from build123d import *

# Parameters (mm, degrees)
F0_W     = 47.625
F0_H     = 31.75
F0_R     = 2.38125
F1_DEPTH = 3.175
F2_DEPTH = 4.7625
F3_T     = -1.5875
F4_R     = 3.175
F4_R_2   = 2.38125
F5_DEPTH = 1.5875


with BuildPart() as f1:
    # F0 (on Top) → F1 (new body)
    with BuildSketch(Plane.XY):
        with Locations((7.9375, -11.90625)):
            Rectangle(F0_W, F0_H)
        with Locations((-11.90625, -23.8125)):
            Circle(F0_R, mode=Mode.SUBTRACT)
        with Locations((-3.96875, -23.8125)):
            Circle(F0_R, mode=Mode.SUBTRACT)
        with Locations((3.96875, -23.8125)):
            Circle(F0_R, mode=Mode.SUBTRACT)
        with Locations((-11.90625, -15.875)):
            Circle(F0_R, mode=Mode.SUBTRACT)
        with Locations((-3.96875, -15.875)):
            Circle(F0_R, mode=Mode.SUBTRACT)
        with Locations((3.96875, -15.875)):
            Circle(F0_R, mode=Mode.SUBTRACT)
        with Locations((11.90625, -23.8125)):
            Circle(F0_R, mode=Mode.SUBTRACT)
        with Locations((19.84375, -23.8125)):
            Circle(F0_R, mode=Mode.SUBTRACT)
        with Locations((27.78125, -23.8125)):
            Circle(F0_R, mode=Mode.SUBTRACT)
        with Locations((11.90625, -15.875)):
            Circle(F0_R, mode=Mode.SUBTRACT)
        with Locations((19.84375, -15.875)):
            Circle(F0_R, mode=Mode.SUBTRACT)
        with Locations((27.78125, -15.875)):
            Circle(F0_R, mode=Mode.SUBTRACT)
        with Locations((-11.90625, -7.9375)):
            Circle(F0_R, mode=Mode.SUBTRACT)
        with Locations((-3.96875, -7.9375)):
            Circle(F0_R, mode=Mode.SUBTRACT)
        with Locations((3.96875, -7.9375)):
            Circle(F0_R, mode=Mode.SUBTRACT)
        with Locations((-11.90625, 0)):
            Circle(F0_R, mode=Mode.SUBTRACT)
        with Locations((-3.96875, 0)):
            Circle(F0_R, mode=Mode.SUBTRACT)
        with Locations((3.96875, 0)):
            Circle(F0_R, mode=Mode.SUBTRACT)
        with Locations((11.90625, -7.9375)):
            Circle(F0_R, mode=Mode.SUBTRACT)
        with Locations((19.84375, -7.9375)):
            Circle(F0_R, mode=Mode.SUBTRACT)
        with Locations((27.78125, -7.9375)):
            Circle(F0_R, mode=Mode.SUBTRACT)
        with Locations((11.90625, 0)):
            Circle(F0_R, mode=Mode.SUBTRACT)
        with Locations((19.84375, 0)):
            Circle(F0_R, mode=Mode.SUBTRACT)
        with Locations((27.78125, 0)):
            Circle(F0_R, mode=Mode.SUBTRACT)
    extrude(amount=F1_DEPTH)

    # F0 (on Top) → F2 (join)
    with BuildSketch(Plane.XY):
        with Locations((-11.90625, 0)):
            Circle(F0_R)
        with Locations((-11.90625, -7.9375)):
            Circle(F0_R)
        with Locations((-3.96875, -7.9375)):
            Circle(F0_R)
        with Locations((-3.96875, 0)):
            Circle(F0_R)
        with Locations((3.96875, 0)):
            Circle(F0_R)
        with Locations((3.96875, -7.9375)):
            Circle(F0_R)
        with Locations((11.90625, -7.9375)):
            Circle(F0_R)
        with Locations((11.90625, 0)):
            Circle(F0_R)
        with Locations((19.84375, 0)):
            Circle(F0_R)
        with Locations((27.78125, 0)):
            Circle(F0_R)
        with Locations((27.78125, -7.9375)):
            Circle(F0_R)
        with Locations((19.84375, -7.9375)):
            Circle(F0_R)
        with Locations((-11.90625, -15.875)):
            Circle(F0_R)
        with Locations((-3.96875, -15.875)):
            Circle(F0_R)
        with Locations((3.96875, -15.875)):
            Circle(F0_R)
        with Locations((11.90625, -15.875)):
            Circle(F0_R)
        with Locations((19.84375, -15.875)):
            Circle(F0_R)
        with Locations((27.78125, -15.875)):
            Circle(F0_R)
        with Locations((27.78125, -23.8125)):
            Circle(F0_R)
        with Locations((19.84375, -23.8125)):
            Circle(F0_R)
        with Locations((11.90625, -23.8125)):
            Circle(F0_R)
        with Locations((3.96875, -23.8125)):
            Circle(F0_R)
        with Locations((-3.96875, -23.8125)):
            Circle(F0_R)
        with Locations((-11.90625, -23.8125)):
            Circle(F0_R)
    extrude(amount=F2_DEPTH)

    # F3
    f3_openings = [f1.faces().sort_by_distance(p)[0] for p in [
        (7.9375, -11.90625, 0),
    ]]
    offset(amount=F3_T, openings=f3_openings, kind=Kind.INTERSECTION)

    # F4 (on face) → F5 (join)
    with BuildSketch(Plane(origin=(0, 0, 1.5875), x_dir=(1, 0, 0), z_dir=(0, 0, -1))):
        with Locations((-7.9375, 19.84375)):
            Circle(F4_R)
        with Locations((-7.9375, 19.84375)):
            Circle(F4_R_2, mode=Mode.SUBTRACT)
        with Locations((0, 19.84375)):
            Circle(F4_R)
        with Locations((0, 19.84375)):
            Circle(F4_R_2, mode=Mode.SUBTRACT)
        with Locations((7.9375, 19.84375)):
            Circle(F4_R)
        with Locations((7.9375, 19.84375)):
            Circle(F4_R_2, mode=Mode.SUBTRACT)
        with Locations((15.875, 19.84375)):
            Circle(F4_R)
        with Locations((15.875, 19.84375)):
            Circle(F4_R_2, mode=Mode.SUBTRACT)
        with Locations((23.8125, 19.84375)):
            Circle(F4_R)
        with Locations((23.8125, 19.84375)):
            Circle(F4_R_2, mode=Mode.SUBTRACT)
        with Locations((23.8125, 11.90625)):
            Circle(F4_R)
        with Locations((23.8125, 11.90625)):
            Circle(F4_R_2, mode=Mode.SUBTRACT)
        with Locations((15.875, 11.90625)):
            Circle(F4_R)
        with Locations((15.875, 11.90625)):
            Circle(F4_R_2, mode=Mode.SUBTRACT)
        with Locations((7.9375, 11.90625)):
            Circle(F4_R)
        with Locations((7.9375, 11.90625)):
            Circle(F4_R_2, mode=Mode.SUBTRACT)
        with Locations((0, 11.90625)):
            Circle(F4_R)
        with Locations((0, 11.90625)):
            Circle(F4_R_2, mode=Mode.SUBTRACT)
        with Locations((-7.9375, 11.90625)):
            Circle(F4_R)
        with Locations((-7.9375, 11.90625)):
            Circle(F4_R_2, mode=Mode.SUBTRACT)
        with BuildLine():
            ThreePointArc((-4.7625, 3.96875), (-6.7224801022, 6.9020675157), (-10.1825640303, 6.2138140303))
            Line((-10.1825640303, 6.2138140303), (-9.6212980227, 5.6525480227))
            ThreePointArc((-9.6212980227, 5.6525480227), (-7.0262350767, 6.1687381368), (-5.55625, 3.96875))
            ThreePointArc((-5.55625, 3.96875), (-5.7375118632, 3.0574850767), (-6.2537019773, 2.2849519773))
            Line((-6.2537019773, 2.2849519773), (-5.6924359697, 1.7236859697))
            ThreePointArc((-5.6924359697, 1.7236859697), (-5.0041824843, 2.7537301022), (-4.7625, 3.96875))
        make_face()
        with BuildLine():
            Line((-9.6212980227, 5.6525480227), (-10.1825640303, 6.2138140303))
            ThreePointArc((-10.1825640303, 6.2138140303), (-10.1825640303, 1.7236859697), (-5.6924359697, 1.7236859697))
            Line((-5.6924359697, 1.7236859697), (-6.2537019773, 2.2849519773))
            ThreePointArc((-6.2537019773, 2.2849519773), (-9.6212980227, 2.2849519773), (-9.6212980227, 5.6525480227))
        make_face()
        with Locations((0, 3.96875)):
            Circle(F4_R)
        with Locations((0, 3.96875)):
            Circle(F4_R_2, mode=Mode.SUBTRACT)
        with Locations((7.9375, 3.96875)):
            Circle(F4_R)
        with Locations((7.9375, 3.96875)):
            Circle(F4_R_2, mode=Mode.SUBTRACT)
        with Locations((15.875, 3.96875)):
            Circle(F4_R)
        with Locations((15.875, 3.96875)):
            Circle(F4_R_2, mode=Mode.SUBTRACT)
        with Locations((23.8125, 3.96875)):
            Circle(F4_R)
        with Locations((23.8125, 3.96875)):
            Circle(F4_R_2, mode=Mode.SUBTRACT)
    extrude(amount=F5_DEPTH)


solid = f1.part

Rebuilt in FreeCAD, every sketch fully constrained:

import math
import FreeCAD as App
import Part
import Sketcher
Q = App.Units.Quantity


def faces_at(feature, points):
    """Names of the faces that lie closest to the given points."""
    faces = feature.Shape.Faces
    near = lambda p: min(range(len(faces)), key=lambda i: faces[i].distToShape(Part.Vertex(*p))[0])
    return sorted({f"Face{near(p) + 1}" for p in points})


def add_polygon(sketch, points):
    """Adds a closed chain of lines whose ends are joined by coincident constraints."""
    first, n = sketch.GeometryCount, len(points)
    for a, b in zip(points, points[1:] + points[:1]):
        sketch.addGeometry(Part.LineSegment(App.Vector(*a, 0), App.Vector(*b, 0)), False)
    for i in range(n):
        sketch.addConstraint(Sketcher.Constraint("Coincident", first + i, 2, first + (i + 1) % n, 1))

doc = App.newDocument("Part")
params = doc.addObject("Spreadsheet::Sheet", "Params")
for row, (alias, value) in enumerate([
    ("sketch1_diameter", "0.1875 in"),
    ("sketch1_height", "1.25 in"),
    ("sketch1_width", "1.875 in"),
    ("pad1_length", "0.125 in"),
    ("sketch2_diameter", "0.1875 in"),
    ("pad2_length", "0.1875 in"),
    ("thickness_wall", "0.0625 in"),
    ("sketch3_diameter", "0.25 in"),
    ("sketch3_diameter2", "0.1875 in"),
    ("pad3_length", "0.0625 in"),
], start=1):
    params.set(f"A{row}", alias)
    params.set(f"B{row}", "=" + value)
    params.setAlias(f"B{row}", alias)

body = doc.addObject("PartDesign::Body", "Body")

# Sketch on XY plane
sketch1 = body.newObject("Sketcher::SketchObject", "Sketch")
sketch1.AttachmentSupport = (doc.getObject("XY_Plane"), [""])
sketch1.MapMode = "FlatFace"
add_polygon(sketch1, [(-15.9, 4), (-15.9, -27.8), (31.8, -27.8), (31.8, 4)])  # lines 0-3
sketch1.addGeometry(Part.Circle(App.Vector(-11.9, -23.8, 0), App.Vector(0, 0, 1), 2.4), False)  # 4
sketch1.addGeometry(Part.Circle(App.Vector(-4, -23.8, 0), App.Vector(0, 0, 1), 2.4), False)  # 5
sketch1.addGeometry(Part.Circle(App.Vector(4, -23.8, 0), App.Vector(0, 0, 1), 2.4), False)  # 6
sketch1.addGeometry(Part.Circle(App.Vector(-11.9, -15.9, 0), App.Vector(0, 0, 1), 2.4), False)  # 7
sketch1.addGeometry(Part.Circle(App.Vector(-4, -15.9, 0), App.Vector(0, 0, 1), 2.4), False)  # 8
sketch1.addGeometry(Part.Circle(App.Vector(4, -15.9, 0), App.Vector(0, 0, 1), 2.4), False)  # 9
sketch1.addGeometry(Part.Circle(App.Vector(11.9, -23.8, 0), App.Vector(0, 0, 1), 2.4), False)  # 10
sketch1.addGeometry(Part.Circle(App.Vector(19.8, -23.8, 0), App.Vector(0, 0, 1), 2.4), False)  # 11
sketch1.addGeometry(Part.Circle(App.Vector(27.8, -23.8, 0), App.Vector(0, 0, 1), 2.4), False)  # 12
sketch1.addGeometry(Part.Circle(App.Vector(11.9, -15.9, 0), App.Vector(0, 0, 1), 2.4), False)  # 13
sketch1.addGeometry(Part.Circle(App.Vector(19.8, -15.9, 0), App.Vector(0, 0, 1), 2.4), False)  # 14
sketch1.addGeometry(Part.Circle(App.Vector(27.8, -15.9, 0), App.Vector(0, 0, 1), 2.4), False)  # 15
sketch1.addGeometry(Part.Circle(App.Vector(-11.9, -7.9, 0), App.Vector(0, 0, 1), 2.4), False)  # 16
sketch1.addGeometry(Part.Circle(App.Vector(-4, -7.9, 0), App.Vector(0, 0, 1), 2.4), False)  # 17
sketch1.addGeometry(Part.Circle(App.Vector(4, -7.9, 0), App.Vector(0, 0, 1), 2.4), False)  # 18
sketch1.addGeometry(Part.Circle(App.Vector(-11.9, 0, 0), App.Vector(0, 0, 1), 2.4), False)  # 19
sketch1.addGeometry(Part.Circle(App.Vector(-4, 0, 0), App.Vector(0, 0, 1), 2.4), False)  # 20
sketch1.addGeometry(Part.Circle(App.Vector(4, 0, 0), App.Vector(0, 0, 1), 2.4), False)  # 21
sketch1.addGeometry(Part.Circle(App.Vector(11.9, -7.9, 0), App.Vector(0, 0, 1), 2.4), False)  # 22
sketch1.addGeometry(Part.Circle(App.Vector(19.8, -7.9, 0), App.Vector(0, 0, 1), 2.4), False)  # 23
sketch1.addGeometry(Part.Circle(App.Vector(27.8, -7.9, 0), App.Vector(0, 0, 1), 2.4), False)  # 24
sketch1.addGeometry(Part.Circle(App.Vector(11.9, 0, 0), App.Vector(0, 0, 1), 2.4), False)  # 25
sketch1.addGeometry(Part.Circle(App.Vector(19.8, 0, 0), App.Vector(0, 0, 1), 2.4), False)  # 26
sketch1.addGeometry(Part.Circle(App.Vector(27.8, 0, 0), App.Vector(0, 0, 1), 2.4), False)  # 27
sketch1.addConstraint(Sketcher.Constraint("Vertical", 0))
sketch1.addConstraint(Sketcher.Constraint("Horizontal", 1))
sketch1.addConstraint(Sketcher.Constraint("Vertical", 2))
sketch1.addConstraint(Sketcher.Constraint("Horizontal", 3))
sketch1.addConstraint(Sketcher.Constraint("Equal", 4, 5))
sketch1.addConstraint(Sketcher.Constraint("Equal", 5, 6))
sketch1.addConstraint(Sketcher.Constraint("Equal", 6, 7))
sketch1.addConstraint(Sketcher.Constraint("Equal", 7, 8))
sketch1.addConstraint(Sketcher.Constraint("Equal", 8, 9))
sketch1.addConstraint(Sketcher.Constraint("Equal", 9, 10))
sketch1.addConstraint(Sketcher.Constraint("Equal", 10, 11))
sketch1.addConstraint(Sketcher.Constraint("Equal", 11, 12))
sketch1.addConstraint(Sketcher.Constraint("Equal", 12, 13))
sketch1.addConstraint(Sketcher.Constraint("Equal", 13, 14))
sketch1.addConstraint(Sketcher.Constraint("Equal", 14, 15))
sketch1.addConstraint(Sketcher.Constraint("Equal", 15, 16))
sketch1.addConstraint(Sketcher.Constraint("Equal", 16, 17))
sketch1.addConstraint(Sketcher.Constraint("Equal", 17, 18))
sketch1.addConstraint(Sketcher.Constraint("Equal", 18, 19))
sketch1.addConstraint(Sketcher.Constraint("Equal", 19, 20))
sketch1.addConstraint(Sketcher.Constraint("Equal", 20, 21))
sketch1.addConstraint(Sketcher.Constraint("Equal", 21, 22))
sketch1.addConstraint(Sketcher.Constraint("Equal", 22, 23))
sketch1.addConstraint(Sketcher.Constraint("Equal", 23, 24))
sketch1.addConstraint(Sketcher.Constraint("Equal", 24, 25))
sketch1.addConstraint(Sketcher.Constraint("Equal", 25, 26))
sketch1.addConstraint(Sketcher.Constraint("Equal", 26, 27))
sketch1.addConstraint(Sketcher.Constraint("Symmetric", 20, 3, 21, 3, -1, 1))
sketch1.addConstraint(Sketcher.Constraint("Symmetric", 19, 3, 25, 3, -1, 1))
sketch1.addConstraint(Sketcher.Constraint("Symmetric", 5, 3, 6, 3, -2))
sketch1.addConstraint(Sketcher.Constraint("Symmetric", 8, 3, 9, 3, -2))
sketch1.addConstraint(Sketcher.Constraint("Symmetric", 4, 3, 10, 3, -2))
sketch1.addConstraint(Sketcher.Constraint("Symmetric", 7, 3, 13, 3, -2))
sketch1.addConstraint(Sketcher.Constraint("Symmetric", 17, 3, 18, 3, -2))
sketch1.addConstraint(Sketcher.Constraint("Symmetric", 16, 3, 22, 3, -2))
sketch1.addConstraint(Sketcher.Constraint("PointOnObject", 19, 3, -1))
sketch1.addConstraint(Sketcher.Constraint("PointOnObject", 20, 3, -1))
sketch1.addConstraint(Sketcher.Constraint("PointOnObject", 26, 3, -1))
sketch1.addConstraint(Sketcher.Constraint("PointOnObject", 27, 3, -1))
sketch1.addConstraint(Sketcher.Constraint("Horizontal", 4, 3, 5, 3))
sketch1.addConstraint(Sketcher.Constraint("Horizontal", 7, 3, 8, 3))
sketch1.addConstraint(Sketcher.Constraint("Horizontal", 10, 3, 11, 3))
sketch1.addConstraint(Sketcher.Constraint("Horizontal", 11, 3, 12, 3))
sketch1.addConstraint(Sketcher.Constraint("Horizontal", 13, 3, 14, 3))
sketch1.addConstraint(Sketcher.Constraint("Horizontal", 14, 3, 15, 3))
sketch1.addConstraint(Sketcher.Constraint("Horizontal", 16, 3, 17, 3))
sketch1.addConstraint(Sketcher.Constraint("Horizontal", 22, 3, 23, 3))
sketch1.addConstraint(Sketcher.Constraint("Horizontal", 23, 3, 24, 3))
sketch1.addConstraint(Sketcher.Constraint("Vertical", 4, 3, 7, 3))
sketch1.addConstraint(Sketcher.Constraint("Vertical", 5, 3, 8, 3))
sketch1.addConstraint(Sketcher.Constraint("Vertical", 11, 3, 14, 3))
sketch1.addConstraint(Sketcher.Constraint("Vertical", 12, 3, 15, 3))
sketch1.addConstraint(Sketcher.Constraint("Vertical", 7, 3, 16, 3))
sketch1.addConstraint(Sketcher.Constraint("Vertical", 8, 3, 17, 3))
sketch1.addConstraint(Sketcher.Constraint("Vertical", 16, 3, 19, 3))
sketch1.addConstraint(Sketcher.Constraint("Vertical", 17, 3, 20, 3))
sketch1.addConstraint(Sketcher.Constraint("Vertical", 14, 3, 23, 3))
sketch1.addConstraint(Sketcher.Constraint("Vertical", 15, 3, 24, 3))
sketch1.addConstraint(Sketcher.Constraint("Vertical", 23, 3, 26, 3))
sketch1.addConstraint(Sketcher.Constraint("Vertical", 24, 3, 27, 3))
sketch1.addConstraint(Sketcher.Constraint("Diameter", 4, Q("0.1875 in")))
sketch1.addConstraint(Sketcher.Constraint("DistanceY", 0, 2, 0, 1, Q("1.25 in")))
sketch1.addConstraint(Sketcher.Constraint("DistanceX", 1, 1, 1, 2, Q("1.875 in")))
sketch1.addConstraint(Sketcher.Constraint("DistanceX", -1, 1, 1, 2, Q("1.25 in")))
sketch1.addConstraint(Sketcher.Constraint("DistanceX", 5, 3, 12, 3, Q("1.25 in")))
sketch1.addConstraint(Sketcher.Constraint("DistanceX", 4, 3, -1, 1, Q("0.46875 in")))
sketch1.addConstraint(Sketcher.Constraint("DistanceY", 4, 3, -1, 1, Q("0.9375 in")))
sketch1.addConstraint(Sketcher.Constraint("DistanceX", 5, 3, -1, 1, Q("0.15625 in")))
sketch1.addConstraint(Sketcher.Constraint("DistanceY", 7, 3, -1, 1, Q("0.625 in")))
sketch1.addConstraint(Sketcher.Constraint("DistanceX", -1, 1, 11, 3, Q("0.78125 in")))
sketch1.addConstraint(Sketcher.Constraint("DistanceY", 16, 3, -1, 1, Q("0.3125 in")))
sketch1.addConstraint(Sketcher.Constraint("DistanceY", 0, 2, -1, 1, Q("1.09375 in")))
sketch1.setExpression("Constraints[64]", "Params.sketch1_diameter")
sketch1.setExpression("Constraints[65]", "Params.sketch1_height")
sketch1.setExpression("Constraints[66]", "Params.sketch1_width")
pad1 = body.newObject("PartDesign::Pad", "Pad")
pad1.Profile = sketch1
pad1.setExpression("Length", "Params.pad1_length")

# Sketch on XY plane
sketch2 = body.newObject("Sketcher::SketchObject", "Sketch001")
sketch2.AttachmentSupport = (doc.getObject("XY_Plane"), [""])
sketch2.MapMode = "FlatFace"
sketch2.addGeometry(Part.Circle(App.Vector(-11.9, 0, 0), App.Vector(0, 0, 1), 2.4), False)
sketch2.addGeometry(Part.Circle(App.Vector(-11.9, -7.9, 0), App.Vector(0, 0, 1), 2.4), False)
sketch2.addGeometry(Part.Circle(App.Vector(-4, -7.9, 0), App.Vector(0, 0, 1), 2.4), False)
sketch2.addGeometry(Part.Circle(App.Vector(-4, 0, 0), App.Vector(0, 0, 1), 2.4), False)
sketch2.addGeometry(Part.Circle(App.Vector(4, 0, 0), App.Vector(0, 0, 1), 2.4), False)
sketch2.addGeometry(Part.Circle(App.Vector(4, -7.9, 0), App.Vector(0, 0, 1), 2.4), False)
sketch2.addGeometry(Part.Circle(App.Vector(11.9, -7.9, 0), App.Vector(0, 0, 1), 2.4), False)
sketch2.addGeometry(Part.Circle(App.Vector(11.9, 0, 0), App.Vector(0, 0, 1), 2.4), False)
sketch2.addGeometry(Part.Circle(App.Vector(19.8, 0, 0), App.Vector(0, 0, 1), 2.4), False)
sketch2.addGeometry(Part.Circle(App.Vector(27.8, 0, 0), App.Vector(0, 0, 1), 2.4), False)
sketch2.addGeometry(Part.Circle(App.Vector(27.8, -7.9, 0), App.Vector(0, 0, 1), 2.4), False)
sketch2.addGeometry(Part.Circle(App.Vector(19.8, -7.9, 0), App.Vector(0, 0, 1), 2.4), False)
sketch2.addGeometry(Part.Circle(App.Vector(-11.9, -15.9, 0), App.Vector(0, 0, 1), 2.4), False)
sketch2.addGeometry(Part.Circle(App.Vector(-4, -15.9, 0), App.Vector(0, 0, 1), 2.4), False)
sketch2.addGeometry(Part.Circle(App.Vector(4, -15.9, 0), App.Vector(0, 0, 1), 2.4), False)
sketch2.addGeometry(Part.Circle(App.Vector(11.9, -15.9, 0), App.Vector(0, 0, 1), 2.4), False)
sketch2.addGeometry(Part.Circle(App.Vector(19.8, -15.9, 0), App.Vector(0, 0, 1), 2.4), False)
sketch2.addGeometry(Part.Circle(App.Vector(27.8, -15.9, 0), App.Vector(0, 0, 1), 2.4), False)
sketch2.addGeometry(Part.Circle(App.Vector(27.8, -23.8, 0), App.Vector(0, 0, 1), 2.4), False)
sketch2.addGeometry(Part.Circle(App.Vector(19.8, -23.8, 0), App.Vector(0, 0, 1), 2.4), False)
sketch2.addGeometry(Part.Circle(App.Vector(11.9, -23.8, 0), App.Vector(0, 0, 1), 2.4), False)
sketch2.addGeometry(Part.Circle(App.Vector(4, -23.8, 0), App.Vector(0, 0, 1), 2.4), False)
sketch2.addGeometry(Part.Circle(App.Vector(-4, -23.8, 0), App.Vector(0, 0, 1), 2.4), False)
sketch2.addGeometry(Part.Circle(App.Vector(-11.9, -23.8, 0), App.Vector(0, 0, 1), 2.4), False)
sketch2.addConstraint(Sketcher.Constraint("Equal", 0, 1))
sketch2.addConstraint(Sketcher.Constraint("Equal", 1, 2))
sketch2.addConstraint(Sketcher.Constraint("Equal", 2, 3))
sketch2.addConstraint(Sketcher.Constraint("Equal", 3, 4))
sketch2.addConstraint(Sketcher.Constraint("Equal", 4, 5))
sketch2.addConstraint(Sketcher.Constraint("Equal", 5, 6))
sketch2.addConstraint(Sketcher.Constraint("Equal", 6, 7))
sketch2.addConstraint(Sketcher.Constraint("Equal", 7, 8))
sketch2.addConstraint(Sketcher.Constraint("Equal", 8, 9))
sketch2.addConstraint(Sketcher.Constraint("Equal", 9, 10))
sketch2.addConstraint(Sketcher.Constraint("Equal", 10, 11))
sketch2.addConstraint(Sketcher.Constraint("Equal", 11, 12))
sketch2.addConstraint(Sketcher.Constraint("Equal", 12, 13))
sketch2.addConstraint(Sketcher.Constraint("Equal", 13, 14))
sketch2.addConstraint(Sketcher.Constraint("Equal", 14, 15))
sketch2.addConstraint(Sketcher.Constraint("Equal", 15, 16))
sketch2.addConstraint(Sketcher.Constraint("Equal", 16, 17))
sketch2.addConstraint(Sketcher.Constraint("Equal", 17, 18))
sketch2.addConstraint(Sketcher.Constraint("Equal", 18, 19))
sketch2.addConstraint(Sketcher.Constraint("Equal", 19, 20))
sketch2.addConstraint(Sketcher.Constraint("Equal", 20, 21))
sketch2.addConstraint(Sketcher.Constraint("Equal", 21, 22))
sketch2.addConstraint(Sketcher.Constraint("Equal", 22, 23))
sketch2.addConstraint(Sketcher.Constraint("Symmetric", 3, 3, 4, 3, -1, 1))
sketch2.addConstraint(Sketcher.Constraint("Symmetric", 0, 3, 7, 3, -1, 1))
sketch2.addConstraint(Sketcher.Constraint("Symmetric", 2, 3, 5, 3, -2))
sketch2.addConstraint(Sketcher.Constraint("Symmetric", 1, 3, 6, 3, -2))
sketch2.addConstraint(Sketcher.Constraint("Symmetric", 13, 3, 14, 3, -2))
sketch2.addConstraint(Sketcher.Constraint("Symmetric", 12, 3, 15, 3, -2))
sketch2.addConstraint(Sketcher.Constraint("Symmetric", 21, 3, 22, 3, -2))
sketch2.addConstraint(Sketcher.Constraint("Symmetric", 20, 3, 23, 3, -2))
sketch2.addConstraint(Sketcher.Constraint("PointOnObject", 0, 3, -1))
sketch2.addConstraint(Sketcher.Constraint("PointOnObject", 3, 3, -1))
sketch2.addConstraint(Sketcher.Constraint("PointOnObject", 8, 3, -1))
sketch2.addConstraint(Sketcher.Constraint("PointOnObject", 9, 3, -1))
sketch2.addConstraint(Sketcher.Constraint("Horizontal", 1, 3, 2, 3))
sketch2.addConstraint(Sketcher.Constraint("Horizontal", 6, 3, 10, 3))
sketch2.addConstraint(Sketcher.Constraint("Horizontal", 10, 3, 11, 3))
sketch2.addConstraint(Sketcher.Constraint("Horizontal", 12, 3, 13, 3))
sketch2.addConstraint(Sketcher.Constraint("Horizontal", 15, 3, 16, 3))
sketch2.addConstraint(Sketcher.Constraint("Horizontal", 16, 3, 17, 3))
sketch2.addConstraint(Sketcher.Constraint("Horizontal", 18, 3, 19, 3))
sketch2.addConstraint(Sketcher.Constraint("Horizontal", 19, 3, 20, 3))
sketch2.addConstraint(Sketcher.Constraint("Horizontal", 20, 3, 21, 3))
sketch2.addConstraint(Sketcher.Constraint("Vertical", 0, 3, 1, 3))
sketch2.addConstraint(Sketcher.Constraint("Vertical", 2, 3, 3, 3))
sketch2.addConstraint(Sketcher.Constraint("Vertical", 9, 3, 10, 3))
sketch2.addConstraint(Sketcher.Constraint("Vertical", 8, 3, 11, 3))
sketch2.addConstraint(Sketcher.Constraint("Vertical", 1, 3, 12, 3))
sketch2.addConstraint(Sketcher.Constraint("Vertical", 3, 3, 13, 3))
sketch2.addConstraint(Sketcher.Constraint("Vertical", 11, 3, 16, 3))
sketch2.addConstraint(Sketcher.Constraint("Vertical", 10, 3, 17, 3))
sketch2.addConstraint(Sketcher.Constraint("Vertical", 17, 3, 18, 3))
sketch2.addConstraint(Sketcher.Constraint("Vertical", 16, 3, 19, 3))
sketch2.addConstraint(Sketcher.Constraint("Vertical", 15, 3, 20, 3))
sketch2.addConstraint(Sketcher.Constraint("Vertical", 14, 3, 21, 3))
sketch2.addConstraint(Sketcher.Constraint("Diameter", 0, Q("0.1875 in")))
sketch2.addConstraint(Sketcher.Constraint("DistanceX", 0, 3, -1, 1, Q("0.46875 in")))
sketch2.addConstraint(Sketcher.Constraint("DistanceY", 1, 3, -1, 1, Q("0.3125 in")))
sketch2.addConstraint(Sketcher.Constraint("DistanceX", 2, 3, -1, 1, Q("0.15625 in")))
sketch2.addConstraint(Sketcher.Constraint("DistanceX", -1, 1, 8, 3, Q("0.78125 in")))
sketch2.addConstraint(Sketcher.Constraint("DistanceX", -1, 1, 9, 3, Q("1.09375 in")))
sketch2.addConstraint(Sketcher.Constraint("DistanceY", 12, 3, -1, 1, Q("0.625 in")))
sketch2.addConstraint(Sketcher.Constraint("DistanceY", 18, 3, -1, 1, Q("0.9375 in")))
sketch2.setExpression("Constraints[56]", "Params.sketch2_diameter")
pad2 = body.newObject("PartDesign::Pad", "Pad001")
pad2.Profile = sketch2
pad2.setExpression("Length", "Params.pad2_length")
doc.recompute()

thickness = body.newObject("PartDesign::Thickness", "Thickness")
thickness.Base = (pad2, faces_at(pad2, [(7.938, -11.906, 0)]))
thickness.setExpression("Value", "Params.thickness_wall")
thickness.Reversed = True
thickness.Join = "Intersection"

# Sketch on XY plane
sketch3 = body.newObject("Sketcher::SketchObject", "Sketch002")
sketch3.AttachmentSupport = (doc.getObject("XY_Plane"), [""])
sketch3.MapMode = "FlatFace"
sketch3.AttachmentOffset = App.Placement(App.Vector(0, 0, 0.0625 * 25.4), App.Rotation())
sketch3.addGeometry(Part.Circle(App.Vector(-7.9, -19.8, 0), App.Vector(0, 0, 1), 3.2), False)
sketch3.addGeometry(Part.Circle(App.Vector(-7.9, -19.8, 0), App.Vector(0, 0, 1), 2.4), False)
sketch3.addGeometry(Part.Circle(App.Vector(0, -19.8, 0), App.Vector(0, 0, 1), 3.2), False)
sketch3.addGeometry(Part.Circle(App.Vector(0, -19.8, 0), App.Vector(0, 0, 1), 2.4), False)
sketch3.addGeometry(Part.Circle(App.Vector(7.9, -19.8, 0), App.Vector(0, 0, 1), 3.2), False)
sketch3.addGeometry(Part.Circle(App.Vector(7.9, -19.8, 0), App.Vector(0, 0, 1), 2.4), False)
sketch3.addGeometry(Part.Circle(App.Vector(15.9, -19.8, 0), App.Vector(0, 0, 1), 3.2), False)
sketch3.addGeometry(Part.Circle(App.Vector(15.9, -19.8, 0), App.Vector(0, 0, 1), 2.4), False)
sketch3.addGeometry(Part.Circle(App.Vector(23.8, -19.8, 0), App.Vector(0, 0, 1), 3.2), False)
sketch3.addGeometry(Part.Circle(App.Vector(23.8, -19.8, 0), App.Vector(0, 0, 1), 2.4), False)
sketch3.addGeometry(Part.Circle(App.Vector(23.8, -11.9, 0), App.Vector(0, 0, 1), 3.2), False)
sketch3.addGeometry(Part.Circle(App.Vector(23.8, -11.9, 0), App.Vector(0, 0, 1), 2.4), False)
sketch3.addGeometry(Part.Circle(App.Vector(15.9, -11.9, 0), App.Vector(0, 0, 1), 3.2), False)
sketch3.addGeometry(Part.Circle(App.Vector(15.9, -11.9, 0), App.Vector(0, 0, 1), 2.4), False)
sketch3.addGeometry(Part.Circle(App.Vector(7.9, -11.9, 0), App.Vector(0, 0, 1), 3.2), False)
sketch3.addGeometry(Part.Circle(App.Vector(7.9, -11.9, 0), App.Vector(0, 0, 1), 2.4), False)
sketch3.addGeometry(Part.Circle(App.Vector(0, -11.9, 0), App.Vector(0, 0, 1), 3.2), False)
sketch3.addGeometry(Part.Circle(App.Vector(0, -11.9, 0), App.Vector(0, 0, 1), 2.4), False)
sketch3.addGeometry(Part.Circle(App.Vector(-7.9, -11.9, 0), App.Vector(0, 0, 1), 3.2), False)
sketch3.addGeometry(Part.Circle(App.Vector(-7.9, -11.9, 0), App.Vector(0, 0, 1), 2.4), False)
sketch3.addGeometry(Part.ArcOfCircle(Part.Circle(App.Vector(-7.9, -4, 0), App.Vector(0, 0, 1), 3.2), math.radians(-135), math.radians(0)), False)
sketch3.addGeometry(Part.ArcOfCircle(Part.Circle(App.Vector(-7.9, -4, 0), App.Vector(0, 0, 1), 3.2), math.radians(45), math.radians(225)), False)
sketch3.addGeometry(Part.ArcOfCircle(Part.Circle(App.Vector(-7.9, -4, 0), App.Vector(0, 0, 1), 3.2), math.radians(0), math.radians(45)), False)
sketch3.addGeometry(Part.Circle(App.Vector(-7.9, -4, 0), App.Vector(0, 0, 1), 2.4), False)
sketch3.addGeometry(Part.Circle(App.Vector(0, -4, 0), App.Vector(0, 0, 1), 3.2), False)
sketch3.addGeometry(Part.Circle(App.Vector(0, -4, 0), App.Vector(0, 0, 1), 2.4), False)
sketch3.addGeometry(Part.Circle(App.Vector(7.9, -4, 0), App.Vector(0, 0, 1), 3.2), False)
sketch3.addGeometry(Part.Circle(App.Vector(7.9, -4, 0), App.Vector(0, 0, 1), 2.4), False)
sketch3.addGeometry(Part.Circle(App.Vector(15.9, -4, 0), App.Vector(0, 0, 1), 3.2), False)
sketch3.addGeometry(Part.Circle(App.Vector(15.9, -4, 0), App.Vector(0, 0, 1), 2.4), False)
sketch3.addGeometry(Part.Circle(App.Vector(23.8, -4, 0), App.Vector(0, 0, 1), 3.2), False)
sketch3.addGeometry(Part.Circle(App.Vector(23.8, -4, 0), App.Vector(0, 0, 1), 2.4), False)
sketch3.addConstraint(Sketcher.Constraint("Tangent", 20, 1, 21, 2))
sketch3.addConstraint(Sketcher.Constraint("Tangent", 21, 1, 22, 2))
sketch3.addConstraint(Sketcher.Constraint("Tangent", 22, 1, 20, 2))
sketch3.addConstraint(Sketcher.Constraint("Coincident", 1, 3, 0, 3))
sketch3.addConstraint(Sketcher.Constraint("Coincident", 3, 3, 2, 3))
sketch3.addConstraint(Sketcher.Constraint("Coincident", 5, 3, 4, 3))
sketch3.addConstraint(Sketcher.Constraint("Coincident", 7, 3, 6, 3))
sketch3.addConstraint(Sketcher.Constraint("Coincident", 9, 3, 8, 3))
sketch3.addConstraint(Sketcher.Constraint("Coincident", 11, 3, 10, 3))
sketch3.addConstraint(Sketcher.Constraint("Coincident", 13, 3, 12, 3))
sketch3.addConstraint(Sketcher.Constraint("Coincident", 15, 3, 14, 3))
sketch3.addConstraint(Sketcher.Constraint("Coincident", 17, 3, 16, 3))
sketch3.addConstraint(Sketcher.Constraint("Coincident", 19, 3, 18, 3))
sketch3.addConstraint(Sketcher.Constraint("Coincident", 23, 3, 20, 3))
sketch3.addConstraint(Sketcher.Constraint("Coincident", 25, 3, 24, 3))
sketch3.addConstraint(Sketcher.Constraint("Coincident", 27, 3, 26, 3))
sketch3.addConstraint(Sketcher.Constraint("Coincident", 29, 3, 28, 3))
sketch3.addConstraint(Sketcher.Constraint("Coincident", 31, 3, 30, 3))
sketch3.addConstraint(Sketcher.Constraint("Equal", 0, 2))
sketch3.addConstraint(Sketcher.Constraint("Equal", 1, 3))
sketch3.addConstraint(Sketcher.Constraint("Equal", 2, 4))
sketch3.addConstraint(Sketcher.Constraint("Equal", 3, 5))
sketch3.addConstraint(Sketcher.Constraint("Equal", 4, 6))
sketch3.addConstraint(Sketcher.Constraint("Equal", 5, 7))
sketch3.addConstraint(Sketcher.Constraint("Equal", 6, 8))
sketch3.addConstraint(Sketcher.Constraint("Equal", 7, 9))
sketch3.addConstraint(Sketcher.Constraint("Equal", 8, 10))
sketch3.addConstraint(Sketcher.Constraint("Equal", 9, 11))
sketch3.addConstraint(Sketcher.Constraint("Equal", 10, 12))
sketch3.addConstraint(Sketcher.Constraint("Equal", 11, 13))
sketch3.addConstraint(Sketcher.Constraint("Equal", 12, 14))
sketch3.addConstraint(Sketcher.Constraint("Equal", 13, 15))
sketch3.addConstraint(Sketcher.Constraint("Equal", 14, 16))
sketch3.addConstraint(Sketcher.Constraint("Equal", 15, 17))
sketch3.addConstraint(Sketcher.Constraint("Equal", 16, 18))
sketch3.addConstraint(Sketcher.Constraint("Equal", 17, 19))
sketch3.addConstraint(Sketcher.Constraint("Equal", 18, 20))
sketch3.addConstraint(Sketcher.Constraint("Equal", 19, 23))
sketch3.addConstraint(Sketcher.Constraint("Equal", 22, 24))
sketch3.addConstraint(Sketcher.Constraint("Equal", 23, 25))
sketch3.addConstraint(Sketcher.Constraint("Equal", 24, 26))
sketch3.addConstraint(Sketcher.Constraint("Equal", 25, 27))
sketch3.addConstraint(Sketcher.Constraint("Equal", 26, 28))
sketch3.addConstraint(Sketcher.Constraint("Equal", 27, 29))
sketch3.addConstraint(Sketcher.Constraint("Equal", 28, 30))
sketch3.addConstraint(Sketcher.Constraint("Equal", 29, 31))
sketch3.addConstraint(Sketcher.Constraint("Symmetric", 0, 3, 4, 3, -2))
sketch3.addConstraint(Sketcher.Constraint("Symmetric", 14, 3, 18, 3, -2))
sketch3.addConstraint(Sketcher.Constraint("Symmetric", 20, 3, 26, 3, -2))
sketch3.addConstraint(Sketcher.Constraint("PointOnObject", 2, 3, -2))
sketch3.addConstraint(Sketcher.Constraint("PointOnObject", 16, 3, -2))
sketch3.addConstraint(Sketcher.Constraint("PointOnObject", 24, 3, -2))
sketch3.addConstraint(Sketcher.Constraint("Horizontal", 1, 3, 2, 3))
sketch3.addConstraint(Sketcher.Constraint("Horizontal", 5, 3, 6, 3))
sketch3.addConstraint(Sketcher.Constraint("Horizontal", 7, 3, 8, 3))
sketch3.addConstraint(Sketcher.Constraint("Horizontal", 11, 3, 12, 3))
sketch3.addConstraint(Sketcher.Constraint("Horizontal", 13, 3, 14, 3))
sketch3.addConstraint(Sketcher.Constraint("Horizontal", 15, 3, 16, 3))
sketch3.addConstraint(Sketcher.Constraint("Horizontal", 23, 3, 24, 3))
sketch3.addConstraint(Sketcher.Constraint("Horizontal", 27, 3, 28, 3))
sketch3.addConstraint(Sketcher.Constraint("Horizontal", 29, 3, 30, 3))
sketch3.addConstraint(Sketcher.Constraint("Horizontal", 31, 3, 22, 1))
sketch3.addConstraint(Sketcher.Constraint("Vertical", 9, 3, 10, 3))
sketch3.addConstraint(Sketcher.Constraint("Vertical", 7, 3, 12, 3))
sketch3.addConstraint(Sketcher.Constraint("Vertical", 5, 3, 14, 3))
sketch3.addConstraint(Sketcher.Constraint("Vertical", 19, 3, 20, 3))
sketch3.addConstraint(Sketcher.Constraint("Vertical", 13, 3, 28, 3))
sketch3.addConstraint(Sketcher.Constraint("Vertical", 11, 3, 30, 3))
sketch3.addConstraint(Sketcher.Constraint("Diameter", 0, Q("0.25 in")))
sketch3.addConstraint(Sketcher.Constraint("Diameter", 1, Q("0.1875 in")))
sketch3.addConstraint(Sketcher.Constraint("DistanceX", 0, 3, -1, 1, Q("0.3125 in")))
sketch3.addConstraint(Sketcher.Constraint("DistanceY", 0, 3, -1, 1, Q("0.78125 in")))
sketch3.addConstraint(Sketcher.Constraint("DistanceX", -1, 1, 6, 3, Q("0.625 in")))
sketch3.addConstraint(Sketcher.Constraint("DistanceX", -1, 1, 8, 3, Q("0.9375 in")))
sketch3.addConstraint(Sketcher.Constraint("DistanceY", 10, 3, -1, 1, Q("0.46875 in")))
sketch3.addConstraint(Sketcher.Constraint("DistanceY", 20, 3, -1, 1, Q("0.15625 in")))
sketch3.addConstraint(Sketcher.Constraint("DistanceX", 20, 1, -1, 1, 10.182564))
sketch3.addConstraint(Sketcher.Constraint("DistanceX", 21, 1, -1, 1, 5.692436))
sketch3.setExpression("Constraints[68]", "Params.sketch3_diameter")
sketch3.setExpression("Constraints[69]", "Params.sketch3_diameter2")
pad3 = body.newObject("PartDesign::Pad", "Pad002")
pad3.Profile = sketch3
pad3.setExpression("Length", "Params.pad3_length")
pad3.Reversed = True

doc.recompute()
